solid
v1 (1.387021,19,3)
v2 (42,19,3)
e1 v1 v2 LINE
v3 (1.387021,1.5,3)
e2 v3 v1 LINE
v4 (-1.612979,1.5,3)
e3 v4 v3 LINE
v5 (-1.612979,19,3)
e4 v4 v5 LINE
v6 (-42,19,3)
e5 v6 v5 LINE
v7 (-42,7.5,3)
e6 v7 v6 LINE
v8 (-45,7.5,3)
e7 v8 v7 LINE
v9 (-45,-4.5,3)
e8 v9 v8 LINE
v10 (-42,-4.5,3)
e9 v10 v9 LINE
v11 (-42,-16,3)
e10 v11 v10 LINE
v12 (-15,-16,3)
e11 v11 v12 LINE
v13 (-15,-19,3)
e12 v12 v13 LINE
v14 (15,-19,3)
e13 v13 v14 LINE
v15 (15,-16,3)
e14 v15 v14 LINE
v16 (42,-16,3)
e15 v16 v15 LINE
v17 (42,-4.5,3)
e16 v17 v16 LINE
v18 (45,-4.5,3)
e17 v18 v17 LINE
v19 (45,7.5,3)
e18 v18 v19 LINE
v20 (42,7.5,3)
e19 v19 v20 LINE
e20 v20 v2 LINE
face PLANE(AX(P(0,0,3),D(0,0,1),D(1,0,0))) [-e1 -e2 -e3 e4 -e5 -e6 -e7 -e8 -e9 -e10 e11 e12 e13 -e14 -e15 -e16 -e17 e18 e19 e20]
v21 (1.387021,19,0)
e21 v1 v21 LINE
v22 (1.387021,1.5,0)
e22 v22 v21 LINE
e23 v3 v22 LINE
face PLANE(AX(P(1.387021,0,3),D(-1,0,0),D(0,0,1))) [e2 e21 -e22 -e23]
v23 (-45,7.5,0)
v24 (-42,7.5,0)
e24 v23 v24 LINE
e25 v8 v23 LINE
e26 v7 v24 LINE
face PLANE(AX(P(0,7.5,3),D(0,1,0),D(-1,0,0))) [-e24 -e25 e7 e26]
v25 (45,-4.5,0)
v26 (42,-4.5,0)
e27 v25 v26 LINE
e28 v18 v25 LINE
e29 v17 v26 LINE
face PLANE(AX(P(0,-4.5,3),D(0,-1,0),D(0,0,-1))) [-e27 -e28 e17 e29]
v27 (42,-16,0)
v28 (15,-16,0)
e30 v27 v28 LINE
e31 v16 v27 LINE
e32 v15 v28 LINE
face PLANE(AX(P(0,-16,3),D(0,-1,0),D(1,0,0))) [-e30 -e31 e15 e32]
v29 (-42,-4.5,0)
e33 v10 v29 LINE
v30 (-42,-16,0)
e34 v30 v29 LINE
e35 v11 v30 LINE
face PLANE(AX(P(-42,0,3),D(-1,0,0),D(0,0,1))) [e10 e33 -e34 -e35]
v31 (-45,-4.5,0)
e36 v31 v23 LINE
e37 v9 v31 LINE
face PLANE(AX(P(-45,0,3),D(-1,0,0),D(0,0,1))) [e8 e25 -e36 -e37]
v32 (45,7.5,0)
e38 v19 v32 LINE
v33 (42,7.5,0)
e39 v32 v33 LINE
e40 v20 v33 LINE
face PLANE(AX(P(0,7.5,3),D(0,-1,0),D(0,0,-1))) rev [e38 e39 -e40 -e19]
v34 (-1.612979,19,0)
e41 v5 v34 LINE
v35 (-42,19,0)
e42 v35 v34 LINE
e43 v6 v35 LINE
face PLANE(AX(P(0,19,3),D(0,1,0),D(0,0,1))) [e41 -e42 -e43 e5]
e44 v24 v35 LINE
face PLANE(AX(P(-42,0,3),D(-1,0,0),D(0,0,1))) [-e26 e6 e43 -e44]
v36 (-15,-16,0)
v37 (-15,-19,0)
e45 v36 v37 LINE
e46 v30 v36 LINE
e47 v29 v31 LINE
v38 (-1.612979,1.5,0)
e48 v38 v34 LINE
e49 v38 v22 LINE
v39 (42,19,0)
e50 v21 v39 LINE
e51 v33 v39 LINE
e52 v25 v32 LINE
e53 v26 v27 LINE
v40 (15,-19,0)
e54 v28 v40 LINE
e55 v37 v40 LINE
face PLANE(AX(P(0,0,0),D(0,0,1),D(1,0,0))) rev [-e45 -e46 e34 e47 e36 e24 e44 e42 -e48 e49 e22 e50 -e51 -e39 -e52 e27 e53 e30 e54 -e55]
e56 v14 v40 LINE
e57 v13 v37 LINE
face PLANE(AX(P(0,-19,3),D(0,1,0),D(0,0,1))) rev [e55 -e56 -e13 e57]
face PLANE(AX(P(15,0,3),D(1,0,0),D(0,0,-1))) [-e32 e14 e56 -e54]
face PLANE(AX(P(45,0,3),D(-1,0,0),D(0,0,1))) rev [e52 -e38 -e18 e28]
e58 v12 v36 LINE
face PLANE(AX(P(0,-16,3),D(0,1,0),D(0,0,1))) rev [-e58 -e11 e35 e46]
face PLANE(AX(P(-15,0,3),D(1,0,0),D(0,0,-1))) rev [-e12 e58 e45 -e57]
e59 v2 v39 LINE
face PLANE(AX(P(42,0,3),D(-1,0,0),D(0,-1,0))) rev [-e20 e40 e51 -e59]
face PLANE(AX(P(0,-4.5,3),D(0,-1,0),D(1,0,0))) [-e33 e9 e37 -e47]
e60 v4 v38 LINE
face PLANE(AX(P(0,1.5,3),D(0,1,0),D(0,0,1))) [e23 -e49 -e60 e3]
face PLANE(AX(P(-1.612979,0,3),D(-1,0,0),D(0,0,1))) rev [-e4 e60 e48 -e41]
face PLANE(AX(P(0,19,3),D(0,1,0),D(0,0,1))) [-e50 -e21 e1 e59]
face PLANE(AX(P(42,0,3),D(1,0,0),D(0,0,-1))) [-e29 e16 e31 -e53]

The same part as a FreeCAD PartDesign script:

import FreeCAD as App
import Part
import Sketcher
from FreeCAD import Vector
Q = App.Units.Quantity


def add_polygon(sketch, points):
    """Adds a closed chain of lines whose ends are joined by coincident constraints."""
    first, n = sketch.GeometryCount, len(points)
    for a, b in zip(points, points[1:] + points[:1]):
        sketch.addGeometry(Part.LineSegment(App.Vector(*a, 0), App.Vector(*b, 0)), False)
    for i in range(n):
        sketch.addConstraint(Sketcher.Constraint("Coincident", first + i, 2, first + (i + 1) % n, 1))

doc = App.newDocument("Part")
body = doc.addObject("PartDesign::Body", "Body")

sketch1 = body.newObject("Sketcher::SketchObject", "Sketch")
sketch1.AttachmentSupport = (doc.getObject("XY_Plane"), [""])
sketch1.MapMode = "FlatFace"
add_polygon(sketch1, [(-42, -4.5), (-42, -16), (-15, -16), (-15, -19), (15, -19), (15, -16), (42, -16), (42, -4.5), (45, -4.5), (45, 7.5), (42, 7.5), (42, 19), (1.4, 19), (1.4, 1.5), (-1.6, 1.5), (-1.6, 19), (-42, 19), (-42, 7.5), (-45, 7.5), (-45, -4.5)])
sketch1.addConstraint(Sketcher.Constraint("Vertical", 0))
sketch1.addConstraint(Sketcher.Constraint("Horizontal", 1))
sketch1.addConstraint(Sketcher.Constraint("Vertical", 2))
sketch1.addConstraint(Sketcher.Constraint("Horizontal", 3))
sketch1.addConstraint(Sketcher.Constraint("Vertical", 4))
sketch1.addConstraint(Sketcher.Constraint("Horizontal", 5))
sketch1.addConstraint(Sketcher.Constraint("Vertical", 6))
sketch1.addConstraint(Sketcher.Constraint("Horizontal", 7))
sketch1.addConstraint(Sketcher.Constraint("Vertical", 8))
sketch1.addConstraint(Sketcher.Constraint("Horizontal", 9))
sketch1.addConstraint(Sketcher.Constraint("Vertical", 10))
sketch1.addConstraint(Sketcher.Constraint("Horizontal", 11))
sketch1.addConstraint(Sketcher.Constraint("Vertical", 12))
sketch1.addConstraint(Sketcher.Constraint("Horizontal", 13))
sketch1.addConstraint(Sketcher.Constraint("Vertical", 14))
sketch1.addConstraint(Sketcher.Constraint("Horizontal", 15))
sketch1.addConstraint(Sketcher.Constraint("Vertical", 16))
sketch1.addConstraint(Sketcher.Constraint("Horizontal", 17))
sketch1.addConstraint(Sketcher.Constraint("Vertical", 18))
sketch1.addConstraint(Sketcher.Constraint("Horizontal", 19))
sketch1.addConstraint(Sketcher.Constraint("Symmetric", 1, 2, 4, 2, -2))
sketch1.addConstraint(Sketcher.Constraint("Symmetric", 10, 2, 15, 2, -2))
sketch1.addConstraint(Sketcher.Constraint("Symmetric", 8, 2, 17, 2, -2))
sketch1.addConstraint(Sketcher.Constraint("Symmetric", 6, 2, 19, 2, -2))
sketch1.addConstraint(Sketcher.Constraint("Vertical", 6, 2, 9, 2))
sketch1.addConstraint(Sketcher.Constraint("Equal", 9, 13))
sketch1.addConstraint(Sketcher.Constraint("Equal", 19, 2))
sketch1.addConstraint(Sketcher.Constraint("Equal", 6, 10))
sketch1.addConstraint(Sketcher.Constraint("DistanceX", 1, 1, 1, 2, Q("27 mm")))
sketch1.addConstraint(Sketcher.Constraint("DistanceX", 3, 1, 3, 2, Q("30 mm")))
sketch1.addConstraint(Sketcher.Constraint("DistanceX", 7, 1, 7, 2, Q("3 mm")))
sketch1.addConstraint(Sketcher.Constraint("DistanceY", 8, 1, 8, 2, Q("12 mm")))
sketch1.addConstraint(Sketcher.Constraint("DistanceY", 0, 2, 0, 1, Q("11.5 mm")))
sketch1.addConstraint(Sketcher.Constraint("DistanceY", 12, 2, 12, 1, Q("17.5 mm")))
sketch1.addConstraint(Sketcher.Constraint("DistanceY", 0, 2, -1, 1, Q("16 mm")))
sketch1.addConstraint(Sketcher.Constraint("DistanceX", 11, 2, 11, 1, Q("40.612979 mm")))
pad1 = body.newObject("PartDesign::Pad", "Pad")
pad1.Profile = sketch1
pad1.Length = 3

doc.recompute()
